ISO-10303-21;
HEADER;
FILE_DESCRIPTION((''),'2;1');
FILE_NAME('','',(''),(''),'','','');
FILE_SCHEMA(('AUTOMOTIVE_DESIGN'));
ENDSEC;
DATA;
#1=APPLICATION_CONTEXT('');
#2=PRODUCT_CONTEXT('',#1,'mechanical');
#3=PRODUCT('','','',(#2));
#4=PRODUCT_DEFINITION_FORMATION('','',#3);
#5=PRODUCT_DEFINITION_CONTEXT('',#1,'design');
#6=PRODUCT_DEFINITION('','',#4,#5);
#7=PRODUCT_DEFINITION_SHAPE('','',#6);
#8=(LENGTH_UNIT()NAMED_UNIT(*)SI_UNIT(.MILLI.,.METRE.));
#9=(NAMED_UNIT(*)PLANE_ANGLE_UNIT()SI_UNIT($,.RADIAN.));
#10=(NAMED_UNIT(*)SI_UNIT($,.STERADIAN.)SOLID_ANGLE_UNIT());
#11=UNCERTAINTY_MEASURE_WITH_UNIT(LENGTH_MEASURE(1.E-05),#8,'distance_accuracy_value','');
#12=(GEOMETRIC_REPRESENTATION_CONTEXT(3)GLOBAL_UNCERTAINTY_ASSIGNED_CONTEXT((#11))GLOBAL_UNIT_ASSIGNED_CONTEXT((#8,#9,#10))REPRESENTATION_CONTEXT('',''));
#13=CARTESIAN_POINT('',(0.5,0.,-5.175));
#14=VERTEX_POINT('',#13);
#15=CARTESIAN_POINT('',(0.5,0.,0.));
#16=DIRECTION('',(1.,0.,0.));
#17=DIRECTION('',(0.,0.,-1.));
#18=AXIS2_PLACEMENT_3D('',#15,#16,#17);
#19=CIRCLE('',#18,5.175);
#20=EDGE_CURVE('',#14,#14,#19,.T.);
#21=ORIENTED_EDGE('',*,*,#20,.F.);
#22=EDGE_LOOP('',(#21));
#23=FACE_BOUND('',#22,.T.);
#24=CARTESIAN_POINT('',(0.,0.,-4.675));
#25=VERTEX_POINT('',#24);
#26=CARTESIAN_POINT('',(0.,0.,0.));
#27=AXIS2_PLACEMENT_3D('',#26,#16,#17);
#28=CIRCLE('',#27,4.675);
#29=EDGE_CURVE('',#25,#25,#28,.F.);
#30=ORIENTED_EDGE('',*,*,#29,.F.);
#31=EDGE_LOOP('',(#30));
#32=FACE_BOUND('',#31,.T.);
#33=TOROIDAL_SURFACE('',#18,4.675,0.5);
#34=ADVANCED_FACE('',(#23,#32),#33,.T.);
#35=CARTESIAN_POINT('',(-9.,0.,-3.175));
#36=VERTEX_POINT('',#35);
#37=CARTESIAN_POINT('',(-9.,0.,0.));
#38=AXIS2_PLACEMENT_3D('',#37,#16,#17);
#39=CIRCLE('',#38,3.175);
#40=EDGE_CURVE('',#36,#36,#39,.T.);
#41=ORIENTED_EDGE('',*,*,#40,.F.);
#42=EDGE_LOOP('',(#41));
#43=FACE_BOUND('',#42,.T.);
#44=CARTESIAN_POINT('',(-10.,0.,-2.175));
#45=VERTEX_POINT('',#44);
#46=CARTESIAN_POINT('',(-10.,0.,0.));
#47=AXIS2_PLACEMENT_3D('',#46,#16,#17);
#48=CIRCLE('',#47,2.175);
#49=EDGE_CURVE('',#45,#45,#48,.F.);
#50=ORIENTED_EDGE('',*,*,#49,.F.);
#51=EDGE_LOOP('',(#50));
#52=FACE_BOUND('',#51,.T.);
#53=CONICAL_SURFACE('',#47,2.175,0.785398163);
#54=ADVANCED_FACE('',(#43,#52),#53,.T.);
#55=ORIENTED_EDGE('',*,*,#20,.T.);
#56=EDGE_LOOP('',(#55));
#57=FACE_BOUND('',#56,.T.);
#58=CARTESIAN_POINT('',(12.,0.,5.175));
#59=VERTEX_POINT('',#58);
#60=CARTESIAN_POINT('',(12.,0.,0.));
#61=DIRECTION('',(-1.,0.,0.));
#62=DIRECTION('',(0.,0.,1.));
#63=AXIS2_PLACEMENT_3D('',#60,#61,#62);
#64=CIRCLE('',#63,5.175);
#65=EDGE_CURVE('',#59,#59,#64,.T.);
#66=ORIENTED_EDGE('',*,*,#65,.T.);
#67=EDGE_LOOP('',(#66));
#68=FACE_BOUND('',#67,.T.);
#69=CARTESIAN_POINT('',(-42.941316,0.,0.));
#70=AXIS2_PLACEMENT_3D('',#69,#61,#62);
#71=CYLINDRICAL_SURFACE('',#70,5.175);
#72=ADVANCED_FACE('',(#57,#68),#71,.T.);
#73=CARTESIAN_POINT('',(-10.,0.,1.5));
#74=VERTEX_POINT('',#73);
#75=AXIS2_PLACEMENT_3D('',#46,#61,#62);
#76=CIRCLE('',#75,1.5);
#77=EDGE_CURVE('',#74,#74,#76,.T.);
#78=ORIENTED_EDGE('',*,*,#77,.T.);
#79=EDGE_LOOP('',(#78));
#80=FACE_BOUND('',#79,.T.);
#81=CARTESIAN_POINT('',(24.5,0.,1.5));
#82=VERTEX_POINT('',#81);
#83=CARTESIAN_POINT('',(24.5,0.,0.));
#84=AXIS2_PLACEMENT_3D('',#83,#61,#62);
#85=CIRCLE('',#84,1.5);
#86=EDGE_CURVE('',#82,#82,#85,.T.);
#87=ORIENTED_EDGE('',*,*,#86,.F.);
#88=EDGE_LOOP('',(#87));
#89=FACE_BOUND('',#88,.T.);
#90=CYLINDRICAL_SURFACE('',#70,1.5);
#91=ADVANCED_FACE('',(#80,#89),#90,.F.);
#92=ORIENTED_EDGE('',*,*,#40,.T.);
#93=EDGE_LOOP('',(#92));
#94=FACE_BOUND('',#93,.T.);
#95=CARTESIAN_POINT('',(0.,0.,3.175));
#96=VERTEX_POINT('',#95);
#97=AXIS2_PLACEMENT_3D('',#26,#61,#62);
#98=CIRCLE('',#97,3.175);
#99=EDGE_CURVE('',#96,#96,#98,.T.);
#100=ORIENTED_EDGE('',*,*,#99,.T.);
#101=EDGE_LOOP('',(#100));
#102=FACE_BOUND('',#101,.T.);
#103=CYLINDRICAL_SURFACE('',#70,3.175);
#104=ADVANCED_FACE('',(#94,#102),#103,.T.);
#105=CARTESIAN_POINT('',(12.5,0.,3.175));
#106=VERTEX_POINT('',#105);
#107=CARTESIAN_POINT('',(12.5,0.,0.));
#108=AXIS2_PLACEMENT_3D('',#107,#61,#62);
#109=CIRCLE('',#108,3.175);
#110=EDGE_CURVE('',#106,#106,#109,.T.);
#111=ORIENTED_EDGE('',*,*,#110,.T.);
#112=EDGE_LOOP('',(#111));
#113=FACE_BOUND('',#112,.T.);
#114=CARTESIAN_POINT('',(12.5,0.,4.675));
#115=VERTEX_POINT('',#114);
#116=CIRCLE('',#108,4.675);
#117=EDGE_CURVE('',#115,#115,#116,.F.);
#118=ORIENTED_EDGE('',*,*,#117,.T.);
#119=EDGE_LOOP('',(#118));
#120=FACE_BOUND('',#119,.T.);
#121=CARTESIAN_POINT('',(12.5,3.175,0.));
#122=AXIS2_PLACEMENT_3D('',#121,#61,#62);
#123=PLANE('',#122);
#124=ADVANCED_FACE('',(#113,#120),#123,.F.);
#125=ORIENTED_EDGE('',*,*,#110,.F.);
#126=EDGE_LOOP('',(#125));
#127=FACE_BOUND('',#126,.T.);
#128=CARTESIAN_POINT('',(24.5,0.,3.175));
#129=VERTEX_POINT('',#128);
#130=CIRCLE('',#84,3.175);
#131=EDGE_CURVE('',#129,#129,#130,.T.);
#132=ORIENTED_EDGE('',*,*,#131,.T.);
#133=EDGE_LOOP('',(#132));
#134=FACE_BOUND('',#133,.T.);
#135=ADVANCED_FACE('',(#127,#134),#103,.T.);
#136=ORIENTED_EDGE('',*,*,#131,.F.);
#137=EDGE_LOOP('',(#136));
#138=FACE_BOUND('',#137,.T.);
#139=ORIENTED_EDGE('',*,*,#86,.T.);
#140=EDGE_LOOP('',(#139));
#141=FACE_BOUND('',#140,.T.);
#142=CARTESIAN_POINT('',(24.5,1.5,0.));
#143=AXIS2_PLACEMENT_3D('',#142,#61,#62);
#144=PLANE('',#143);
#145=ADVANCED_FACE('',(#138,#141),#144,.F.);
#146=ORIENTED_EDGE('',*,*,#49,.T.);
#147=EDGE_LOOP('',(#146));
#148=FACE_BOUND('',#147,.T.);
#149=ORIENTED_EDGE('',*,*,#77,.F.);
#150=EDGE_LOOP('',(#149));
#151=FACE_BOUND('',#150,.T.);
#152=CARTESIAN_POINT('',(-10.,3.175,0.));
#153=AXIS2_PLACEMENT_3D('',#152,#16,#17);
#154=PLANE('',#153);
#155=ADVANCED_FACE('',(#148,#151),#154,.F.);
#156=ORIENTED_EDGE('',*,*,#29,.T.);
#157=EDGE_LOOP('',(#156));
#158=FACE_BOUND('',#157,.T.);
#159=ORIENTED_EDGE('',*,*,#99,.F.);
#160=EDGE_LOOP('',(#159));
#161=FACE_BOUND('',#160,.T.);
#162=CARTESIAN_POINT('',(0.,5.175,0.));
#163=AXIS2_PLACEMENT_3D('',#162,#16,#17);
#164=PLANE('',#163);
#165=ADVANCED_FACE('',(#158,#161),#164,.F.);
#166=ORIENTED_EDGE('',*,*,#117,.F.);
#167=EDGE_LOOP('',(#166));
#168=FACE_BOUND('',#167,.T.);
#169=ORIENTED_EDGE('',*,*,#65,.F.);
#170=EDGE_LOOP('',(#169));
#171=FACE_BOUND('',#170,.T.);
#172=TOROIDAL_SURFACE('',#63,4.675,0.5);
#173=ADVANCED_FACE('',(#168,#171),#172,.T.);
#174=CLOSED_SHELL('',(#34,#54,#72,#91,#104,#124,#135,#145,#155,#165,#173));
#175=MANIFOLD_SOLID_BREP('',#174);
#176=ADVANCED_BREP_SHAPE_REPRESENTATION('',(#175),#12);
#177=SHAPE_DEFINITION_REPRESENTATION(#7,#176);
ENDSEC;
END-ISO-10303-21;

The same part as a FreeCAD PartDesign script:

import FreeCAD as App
import Part
import Sketcher


def edges_at(feature, points):
    """Names of the edges that pass closest to the given points."""
    edges = feature.Shape.Edges
    near = lambda p: min(range(len(edges)), key=lambda i: edges[i].distToShape(Part.Vertex(*p))[0])
    return sorted({f"Edge{near(p) + 1}" for p in points})

doc = App.newDocument("Part")
params = doc.addObject("Spreadsheet::Sheet", "Params")
for row, (alias, value) in enumerate([
    ("sketch1_width", "12 mm"),
    ("sketch1_width2", "10 mm"),
    ("sketch1_height", "2 mm"),
    ("sketch1_width3", "12.5 mm"),
    ("revolution_angle", "360 deg"),
    ("chamfer_size", "1 mm"),
    ("fillet_radius", "0.5 mm"),
], start=1):
    params.set(f"A{row}", alias)
    params.set(f"B{row}", "=" + value)
    params.setAlias(f"B{row}", alias)

body = doc.addObject("PartDesign::Body", "Body")

# Sketch on XY plane
sketch1 = doc.addObject("Sketcher::SketchObject", "Sketch")
body.addObject(sketch1)
sketch1.AttachmentSupport = (doc.XY_Plane, [""])
sketch1.MapMode = "FlatFace"
sketch1.addGeometry([
    Part.LineSegment(App.Vector(24.5, 3.175, 0), App.Vector(12.5, 3.175, 0)),  # 0
    Part.LineSegment(App.Vector(12.5, 3.175, 0), App.Vector(12.5, 5.175, 0)),  # 1
    Part.LineSegment(App.Vector(12.5, 5.175, 0), App.Vector(0, 5.175, 0)),  # 2
    Part.LineSegment(App.Vector(0, 5.175, 0), App.Vector(0, 3.175, 0)),  # 3
    Part.LineSegment(App.Vector(0, 3.175, 0), App.Vector(-10, 3.175, 0)),  # 4
    Part.LineSegment(App.Vector(-10, 3.175, 0), App.Vector(-10, 1.5, 0)),  # 5
    Part.LineSegment(App.Vector(-10, 1.5, 0), App.Vector(24.5, 1.5, 0)),  # 6
    Part.LineSegment(App.Vector(24.5, 1.5, 0), App.Vector(24.5, 3.175, 0)),  # 7
], False)
sketch1.addConstraint([
    Sketcher.Constraint("Coincident", 0, 2, 1, 1),
    Sketcher.Constraint("Coincident", 1, 2, 2, 1),
    Sketcher.Constraint("Coincident", 2, 2, 3, 1),
    Sketcher.Constraint("Coincident", 3, 2, 4, 1),
    Sketcher.Constraint("Coincident", 4, 2, 5, 1),
    Sketcher.Constraint("Coincident", 5, 2, 6, 1),
    Sketcher.Constraint("Coincident", 6, 2, 7, 1),
    Sketcher.Constraint("Coincident", 7, 2, 0, 1),
    Sketcher.Constraint("Horizontal", 0),
    Sketcher.Constraint("Vertical", 1),
    Sketcher.Constraint("Horizontal", 2),
    Sketcher.Constraint("Vertical", 3),
    Sketcher.Constraint("Horizontal", 4),
    Sketcher.Constraint("Vertical", 5),
    Sketcher.Constraint("Horizontal", 6),
    Sketcher.Constraint("Vertical", 7),
    Sketcher.Constraint("PointOnObject", 2, 2, -2),
    Sketcher.Constraint("Horizontal", 0, 2, 3, 2),
    Sketcher.Constraint("DistanceX", 0, 2, 0, 1, 12.0),
    Sketcher.Constraint("DistanceX", 4, 2, 4, 1, 10.0),
    Sketcher.Constraint("DistanceY", 1, 1, 1, 2, 2.0),
    Sketcher.Constraint("DistanceX", 2, 2, 2, 1, 12.5),
    Sketcher.Constraint("DistanceY", -1, 1, 5, 2, 1.5),
    Sketcher.Constraint("DistanceY", 5, 2, 5, 1, 1.675),
])
sketch1.setExpression("Constraints[18]", "Params.sketch1_width")
sketch1.setExpression("Constraints[19]", "Params.sketch1_width2")
sketch1.setExpression("Constraints[20]", "Params.sketch1_height")
sketch1.setExpression("Constraints[21]", "Params.sketch1_width3")
revolution = doc.addObject("PartDesign::Revolution", "Revolution")
body.addObject(revolution)
revolution.Profile = sketch1
revolution.ReferenceAxis = (sketch1, ["H_Axis"])
revolution.setExpression("Angle", "Params.revolution_angle")
doc.recompute()

chamfer = doc.addObject("PartDesign::Chamfer", "Chamfer")
body.addObject(chamfer)
chamfer.Base = (revolution, edges_at(revolution, [(-10, -3.175, 0)]))
chamfer.setExpression("Size", "Params.chamfer_size")
doc.recompute()

fillet = doc.addObject("PartDesign::Fillet", "Fillet")
body.addObject(fillet)
fillet.Base = (chamfer, edges_at(chamfer, [(0, -5.175, 0), (12.5, -5.175, 0)]))
fillet.setExpression("Radius", "Params.fillet_radius")

doc.recompute()
